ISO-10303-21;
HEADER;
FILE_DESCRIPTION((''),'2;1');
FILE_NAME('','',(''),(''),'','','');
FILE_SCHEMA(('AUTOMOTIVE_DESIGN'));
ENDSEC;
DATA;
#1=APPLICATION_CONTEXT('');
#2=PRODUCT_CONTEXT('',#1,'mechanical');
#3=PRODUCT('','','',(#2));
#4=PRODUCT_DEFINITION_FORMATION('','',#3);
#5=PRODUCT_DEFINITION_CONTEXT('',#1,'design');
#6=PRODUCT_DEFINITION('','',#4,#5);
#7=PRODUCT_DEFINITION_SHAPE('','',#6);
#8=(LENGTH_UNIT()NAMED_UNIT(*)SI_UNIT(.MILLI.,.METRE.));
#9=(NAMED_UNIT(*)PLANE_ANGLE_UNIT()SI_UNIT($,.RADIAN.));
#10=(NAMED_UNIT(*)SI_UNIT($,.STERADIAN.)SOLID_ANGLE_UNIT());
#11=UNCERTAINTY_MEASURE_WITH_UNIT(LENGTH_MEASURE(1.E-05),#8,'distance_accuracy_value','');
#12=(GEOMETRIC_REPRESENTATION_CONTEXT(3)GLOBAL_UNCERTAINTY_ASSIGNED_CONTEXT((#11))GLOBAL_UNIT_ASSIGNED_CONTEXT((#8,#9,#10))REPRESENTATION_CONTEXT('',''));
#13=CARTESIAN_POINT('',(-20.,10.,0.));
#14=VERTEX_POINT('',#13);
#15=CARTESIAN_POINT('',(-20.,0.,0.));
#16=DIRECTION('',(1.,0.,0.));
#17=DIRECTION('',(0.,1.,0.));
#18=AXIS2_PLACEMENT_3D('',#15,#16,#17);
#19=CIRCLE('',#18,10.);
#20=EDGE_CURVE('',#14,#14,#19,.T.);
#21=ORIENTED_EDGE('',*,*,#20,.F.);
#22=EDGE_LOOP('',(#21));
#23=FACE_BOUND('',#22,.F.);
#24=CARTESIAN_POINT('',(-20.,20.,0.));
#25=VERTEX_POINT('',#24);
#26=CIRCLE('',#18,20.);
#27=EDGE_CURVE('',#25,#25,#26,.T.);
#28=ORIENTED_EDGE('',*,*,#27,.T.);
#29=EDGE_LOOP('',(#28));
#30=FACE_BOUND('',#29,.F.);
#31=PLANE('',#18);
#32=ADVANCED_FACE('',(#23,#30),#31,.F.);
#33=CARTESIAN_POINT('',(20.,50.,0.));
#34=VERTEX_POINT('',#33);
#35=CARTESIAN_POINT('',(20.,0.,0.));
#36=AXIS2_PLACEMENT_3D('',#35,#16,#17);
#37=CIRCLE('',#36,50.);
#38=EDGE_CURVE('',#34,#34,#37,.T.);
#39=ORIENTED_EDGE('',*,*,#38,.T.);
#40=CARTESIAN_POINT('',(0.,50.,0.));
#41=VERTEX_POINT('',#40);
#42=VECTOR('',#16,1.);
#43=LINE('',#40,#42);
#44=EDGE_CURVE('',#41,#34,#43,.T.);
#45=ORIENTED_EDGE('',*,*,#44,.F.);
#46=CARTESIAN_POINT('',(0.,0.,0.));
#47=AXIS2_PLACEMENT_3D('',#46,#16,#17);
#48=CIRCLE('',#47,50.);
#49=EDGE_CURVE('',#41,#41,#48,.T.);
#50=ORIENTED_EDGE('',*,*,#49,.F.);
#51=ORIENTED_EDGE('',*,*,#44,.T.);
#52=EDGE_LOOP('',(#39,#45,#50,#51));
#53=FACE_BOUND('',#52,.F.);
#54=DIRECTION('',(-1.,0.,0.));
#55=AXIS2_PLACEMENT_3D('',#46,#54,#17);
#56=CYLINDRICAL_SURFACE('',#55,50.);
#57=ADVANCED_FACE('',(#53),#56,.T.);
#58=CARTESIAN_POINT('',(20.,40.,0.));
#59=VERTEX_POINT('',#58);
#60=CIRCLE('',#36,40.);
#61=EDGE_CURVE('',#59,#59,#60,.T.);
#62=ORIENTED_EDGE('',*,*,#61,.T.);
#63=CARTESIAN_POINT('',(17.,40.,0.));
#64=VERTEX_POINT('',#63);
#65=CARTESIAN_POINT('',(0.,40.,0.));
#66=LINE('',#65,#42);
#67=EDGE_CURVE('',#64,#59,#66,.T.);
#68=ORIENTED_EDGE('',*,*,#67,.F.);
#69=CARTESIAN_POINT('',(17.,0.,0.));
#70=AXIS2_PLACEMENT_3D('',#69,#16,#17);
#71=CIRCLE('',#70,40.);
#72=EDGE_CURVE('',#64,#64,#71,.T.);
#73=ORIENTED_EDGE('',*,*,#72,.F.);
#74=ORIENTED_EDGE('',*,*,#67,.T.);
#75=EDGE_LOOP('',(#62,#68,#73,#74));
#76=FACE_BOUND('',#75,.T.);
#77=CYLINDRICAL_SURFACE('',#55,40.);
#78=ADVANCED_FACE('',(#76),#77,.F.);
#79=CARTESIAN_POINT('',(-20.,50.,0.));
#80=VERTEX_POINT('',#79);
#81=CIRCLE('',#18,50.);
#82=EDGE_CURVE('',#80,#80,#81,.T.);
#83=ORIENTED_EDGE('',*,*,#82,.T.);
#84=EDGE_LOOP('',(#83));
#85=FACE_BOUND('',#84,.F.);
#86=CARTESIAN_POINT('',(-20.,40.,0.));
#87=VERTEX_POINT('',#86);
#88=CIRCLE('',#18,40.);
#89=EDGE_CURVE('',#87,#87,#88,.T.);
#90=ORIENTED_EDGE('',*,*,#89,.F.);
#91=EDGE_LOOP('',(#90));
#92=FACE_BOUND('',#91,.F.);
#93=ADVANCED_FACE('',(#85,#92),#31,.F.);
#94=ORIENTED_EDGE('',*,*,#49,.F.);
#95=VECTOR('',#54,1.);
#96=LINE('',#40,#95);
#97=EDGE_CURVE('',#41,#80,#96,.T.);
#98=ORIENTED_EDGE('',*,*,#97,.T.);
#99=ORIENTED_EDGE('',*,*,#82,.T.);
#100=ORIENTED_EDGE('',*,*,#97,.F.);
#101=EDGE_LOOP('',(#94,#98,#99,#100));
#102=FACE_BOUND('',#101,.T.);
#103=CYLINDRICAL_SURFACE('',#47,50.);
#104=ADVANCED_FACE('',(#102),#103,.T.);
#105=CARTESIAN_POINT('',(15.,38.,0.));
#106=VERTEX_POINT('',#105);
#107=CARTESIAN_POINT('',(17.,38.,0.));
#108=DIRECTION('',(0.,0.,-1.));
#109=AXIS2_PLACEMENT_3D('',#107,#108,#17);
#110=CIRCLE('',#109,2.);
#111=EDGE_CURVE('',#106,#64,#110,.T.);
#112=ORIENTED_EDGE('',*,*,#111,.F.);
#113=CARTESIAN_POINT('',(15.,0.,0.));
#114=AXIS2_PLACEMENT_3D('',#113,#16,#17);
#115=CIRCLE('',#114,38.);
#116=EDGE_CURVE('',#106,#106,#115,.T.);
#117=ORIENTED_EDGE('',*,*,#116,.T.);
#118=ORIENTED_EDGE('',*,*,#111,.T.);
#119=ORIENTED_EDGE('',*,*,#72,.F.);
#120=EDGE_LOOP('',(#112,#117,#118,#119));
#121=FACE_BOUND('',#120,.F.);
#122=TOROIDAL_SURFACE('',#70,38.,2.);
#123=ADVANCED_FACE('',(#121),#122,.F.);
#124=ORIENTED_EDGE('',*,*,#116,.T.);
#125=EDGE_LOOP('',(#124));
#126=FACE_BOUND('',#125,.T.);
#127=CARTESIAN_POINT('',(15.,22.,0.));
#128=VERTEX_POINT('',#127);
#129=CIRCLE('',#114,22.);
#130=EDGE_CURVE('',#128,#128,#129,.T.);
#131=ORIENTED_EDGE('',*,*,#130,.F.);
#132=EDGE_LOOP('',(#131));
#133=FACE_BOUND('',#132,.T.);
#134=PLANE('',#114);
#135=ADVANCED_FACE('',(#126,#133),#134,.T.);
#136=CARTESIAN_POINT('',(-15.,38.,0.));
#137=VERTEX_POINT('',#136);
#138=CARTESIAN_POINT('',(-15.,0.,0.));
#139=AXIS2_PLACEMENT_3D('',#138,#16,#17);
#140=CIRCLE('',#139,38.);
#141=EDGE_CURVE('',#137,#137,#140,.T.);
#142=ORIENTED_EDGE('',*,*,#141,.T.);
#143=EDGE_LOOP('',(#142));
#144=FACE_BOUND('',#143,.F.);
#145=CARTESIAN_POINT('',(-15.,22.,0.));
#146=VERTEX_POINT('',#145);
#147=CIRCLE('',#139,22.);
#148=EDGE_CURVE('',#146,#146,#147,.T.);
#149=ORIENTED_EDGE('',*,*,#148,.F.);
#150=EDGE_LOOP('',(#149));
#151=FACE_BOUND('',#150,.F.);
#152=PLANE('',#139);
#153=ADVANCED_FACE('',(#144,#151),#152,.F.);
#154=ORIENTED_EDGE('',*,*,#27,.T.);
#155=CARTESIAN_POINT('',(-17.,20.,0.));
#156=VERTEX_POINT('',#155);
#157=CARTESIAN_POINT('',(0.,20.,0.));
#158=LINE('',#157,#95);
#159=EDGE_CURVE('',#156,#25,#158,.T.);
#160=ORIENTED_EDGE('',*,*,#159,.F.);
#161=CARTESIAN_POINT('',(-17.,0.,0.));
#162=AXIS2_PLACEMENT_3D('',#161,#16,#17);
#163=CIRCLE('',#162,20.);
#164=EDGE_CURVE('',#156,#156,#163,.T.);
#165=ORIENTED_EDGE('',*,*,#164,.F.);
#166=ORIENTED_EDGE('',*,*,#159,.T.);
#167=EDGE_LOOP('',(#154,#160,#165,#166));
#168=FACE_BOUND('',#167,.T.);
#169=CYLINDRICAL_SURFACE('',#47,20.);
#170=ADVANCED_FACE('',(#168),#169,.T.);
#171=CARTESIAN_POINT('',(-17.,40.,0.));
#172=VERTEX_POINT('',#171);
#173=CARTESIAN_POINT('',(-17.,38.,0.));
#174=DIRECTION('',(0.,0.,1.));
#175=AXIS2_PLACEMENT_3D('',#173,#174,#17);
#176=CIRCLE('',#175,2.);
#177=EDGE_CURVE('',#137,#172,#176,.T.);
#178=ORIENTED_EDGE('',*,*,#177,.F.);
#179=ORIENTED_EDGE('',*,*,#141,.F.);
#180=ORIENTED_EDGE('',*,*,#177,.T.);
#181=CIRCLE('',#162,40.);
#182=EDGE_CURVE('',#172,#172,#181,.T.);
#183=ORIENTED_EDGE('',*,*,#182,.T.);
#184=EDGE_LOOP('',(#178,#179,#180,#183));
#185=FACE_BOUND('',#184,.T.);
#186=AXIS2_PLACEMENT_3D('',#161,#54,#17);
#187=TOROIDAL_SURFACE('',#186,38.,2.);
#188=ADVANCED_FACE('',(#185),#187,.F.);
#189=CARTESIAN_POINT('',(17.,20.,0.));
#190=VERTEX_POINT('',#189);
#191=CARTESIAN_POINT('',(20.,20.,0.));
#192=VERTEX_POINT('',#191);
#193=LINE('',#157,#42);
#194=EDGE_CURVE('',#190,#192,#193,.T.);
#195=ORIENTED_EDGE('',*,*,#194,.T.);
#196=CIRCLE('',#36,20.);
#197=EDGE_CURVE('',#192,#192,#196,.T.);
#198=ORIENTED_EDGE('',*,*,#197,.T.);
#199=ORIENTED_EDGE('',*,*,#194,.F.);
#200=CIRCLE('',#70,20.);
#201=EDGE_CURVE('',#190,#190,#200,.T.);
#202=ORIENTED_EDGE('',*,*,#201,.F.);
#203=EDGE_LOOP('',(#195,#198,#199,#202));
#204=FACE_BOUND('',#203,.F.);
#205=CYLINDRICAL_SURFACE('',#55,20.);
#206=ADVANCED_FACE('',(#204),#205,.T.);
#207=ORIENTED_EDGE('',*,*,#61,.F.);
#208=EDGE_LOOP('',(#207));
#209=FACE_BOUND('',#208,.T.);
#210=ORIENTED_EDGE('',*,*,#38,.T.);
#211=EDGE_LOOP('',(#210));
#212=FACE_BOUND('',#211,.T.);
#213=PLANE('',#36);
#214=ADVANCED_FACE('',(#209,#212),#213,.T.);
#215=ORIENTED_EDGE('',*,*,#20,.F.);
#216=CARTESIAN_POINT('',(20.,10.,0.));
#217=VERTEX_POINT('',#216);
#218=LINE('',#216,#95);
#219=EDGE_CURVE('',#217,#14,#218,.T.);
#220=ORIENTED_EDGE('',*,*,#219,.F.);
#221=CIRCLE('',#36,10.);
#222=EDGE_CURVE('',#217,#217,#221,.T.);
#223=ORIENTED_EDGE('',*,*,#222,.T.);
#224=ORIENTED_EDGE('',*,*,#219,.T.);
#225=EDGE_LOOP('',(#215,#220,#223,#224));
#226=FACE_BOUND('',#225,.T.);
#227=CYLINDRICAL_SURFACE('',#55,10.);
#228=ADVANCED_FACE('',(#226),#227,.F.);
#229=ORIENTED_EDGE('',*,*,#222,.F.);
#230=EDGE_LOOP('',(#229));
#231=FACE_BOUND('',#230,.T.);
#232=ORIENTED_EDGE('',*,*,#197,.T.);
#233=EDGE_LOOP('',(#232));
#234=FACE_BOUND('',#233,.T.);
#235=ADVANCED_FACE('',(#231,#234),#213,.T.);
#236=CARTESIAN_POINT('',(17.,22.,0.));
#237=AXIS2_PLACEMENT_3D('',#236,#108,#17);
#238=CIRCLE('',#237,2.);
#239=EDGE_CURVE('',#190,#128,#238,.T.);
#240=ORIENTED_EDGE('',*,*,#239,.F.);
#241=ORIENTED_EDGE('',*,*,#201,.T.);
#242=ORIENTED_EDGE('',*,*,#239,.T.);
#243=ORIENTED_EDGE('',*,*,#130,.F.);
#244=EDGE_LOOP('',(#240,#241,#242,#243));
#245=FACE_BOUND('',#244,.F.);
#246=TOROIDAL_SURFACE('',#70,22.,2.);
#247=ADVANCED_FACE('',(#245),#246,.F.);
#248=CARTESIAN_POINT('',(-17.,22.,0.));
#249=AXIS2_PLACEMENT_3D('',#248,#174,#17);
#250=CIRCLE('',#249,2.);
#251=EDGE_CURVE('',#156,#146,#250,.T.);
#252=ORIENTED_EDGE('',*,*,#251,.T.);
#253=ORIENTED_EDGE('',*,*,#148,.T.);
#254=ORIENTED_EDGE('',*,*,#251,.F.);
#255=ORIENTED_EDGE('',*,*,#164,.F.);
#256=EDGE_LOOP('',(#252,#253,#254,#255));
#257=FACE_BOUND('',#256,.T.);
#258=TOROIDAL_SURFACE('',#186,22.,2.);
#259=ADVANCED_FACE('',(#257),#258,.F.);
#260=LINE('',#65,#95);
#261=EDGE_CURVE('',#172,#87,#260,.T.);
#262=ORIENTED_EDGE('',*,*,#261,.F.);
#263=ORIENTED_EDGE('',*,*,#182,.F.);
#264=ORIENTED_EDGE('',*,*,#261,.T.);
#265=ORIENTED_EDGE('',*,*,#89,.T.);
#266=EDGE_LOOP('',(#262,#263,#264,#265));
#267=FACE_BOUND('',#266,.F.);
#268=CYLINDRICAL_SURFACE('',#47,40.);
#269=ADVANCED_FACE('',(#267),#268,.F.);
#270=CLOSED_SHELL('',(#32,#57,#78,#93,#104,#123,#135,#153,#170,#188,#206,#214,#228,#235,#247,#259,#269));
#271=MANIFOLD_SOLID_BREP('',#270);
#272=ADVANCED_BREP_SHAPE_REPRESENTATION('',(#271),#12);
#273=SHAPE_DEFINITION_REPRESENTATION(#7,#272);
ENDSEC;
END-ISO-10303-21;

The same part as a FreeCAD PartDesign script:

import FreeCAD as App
import Part
import Sketcher

V = App.Vector


def edges_at(feature, points):
    """Names of the edges that pass closest to the given points."""
    edges = feature.Shape.Edges
    near = lambda p: min(range(len(edges)), key=lambda i: edges[i].distToShape(Part.Vertex(*p))[0])
    return sorted({f"Edge{near(p) + 1}" for p in points})

doc = App.newDocument("Part")
body = doc.addObject("PartDesign::Body", "Body")
body.AllowCompound = True

sketch1 = body.newObject("Sketcher::SketchObject", "Sketch")
sketch1.AttachmentSupport = (doc.getObject("YZ_Plane"), [""])
sketch1.MapMode = "FlatFace"
sketch1.addGeometry(Part.Circle(V(0, 0, 0), V(0, 0, 1), 20), False)
sketch1.addGeometry(Part.Circle(V(0, 0, 0), V(0, 0, 1), 10), False)
sketch1.addGeometry(Part.Circle(V(0, 0, 0), V(0, 0, 1), 50), False)
sketch1.addGeometry(Part.Circle(V(0, 0, 0), V(0, 0, 1), 40), False)
sketch1.addConstraint(Sketcher.Constraint("Coincident", 0, 3, -1, 1))
sketch1.addConstraint(Sketcher.Constraint("Coincident", 1, 3, -1, 1))
sketch1.addConstraint(Sketcher.Constraint("Coincident", 2, 3, -1, 1))
sketch1.addConstraint(Sketcher.Constraint("Coincident", 3, 3, -1, 1))
sketch1.addConstraint(Sketcher.Constraint("Diameter", 0, 40.0))
sketch1.addConstraint(Sketcher.Constraint("Diameter", 1, 20.0))
sketch1.addConstraint(Sketcher.Constraint("Diameter", 2, 100.0))
sketch1.addConstraint(Sketcher.Constraint("Diameter", 3, 80.0))
pad1 = body.newObject("PartDesign::Pad", "Pad")
pad1.Profile = sketch1
pad1.Length = 40
pad1.Midplane = True

sketch2 = body.newObject("Sketcher::SketchObject", "Sketch001")
sketch2.AttachmentSupport = (doc.getObject("YZ_Plane"), [""])
sketch2.MapMode = "FlatFace"
sketch2.addGeometry(Part.Circle(V(0, 0, 0), V(0, 0, 1), 40), False)
sketch2.addGeometry(Part.Circle(V(0, 0, 0), V(0, 0, 1), 20), False)
sketch2.addConstraint(Sketcher.Constraint("Coincident", 0, 3, -1, 1))
sketch2.addConstraint(Sketcher.Constraint("Coincident", 1, 3, -1, 1))
sketch2.addConstraint(Sketcher.Constraint("Diameter", 0, 80.0))
sketch2.addConstraint(Sketcher.Constraint("Diameter", 1, 40.0))
pad2 = body.newObject("PartDesign::Pad", "Pad001")
pad2.Profile = sketch2
pad2.Length = 30
pad2.Midplane = True
doc.recompute()

fillet = body.newObject("PartDesign::Fillet", "Fillet")
fillet.Base = (pad2, edges_at(pad2, [(-15, -40, 0)]))
fillet.Radius = 2
doc.recompute()

fillet2 = body.newObject("PartDesign::Fillet", "Fillet001")
fillet2.Base = (fillet, edges_at(fillet, [(15, -40, 0)]))
fillet2.Radius = 2
doc.recompute()

fillet3 = body.newObject("PartDesign::Fillet", "Fillet002")
fillet3.Base = (fillet2, edges_at(fillet2, [(-15, -20, 0)]))
fillet3.Radius = 2
doc.recompute()

fillet4 = body.newObject("PartDesign::Fillet", "Fillet003")
fillet4.Base = (fillet3, edges_at(fillet3, [(15, -20, 0)]))
fillet4.Radius = 2

doc.recompute()
